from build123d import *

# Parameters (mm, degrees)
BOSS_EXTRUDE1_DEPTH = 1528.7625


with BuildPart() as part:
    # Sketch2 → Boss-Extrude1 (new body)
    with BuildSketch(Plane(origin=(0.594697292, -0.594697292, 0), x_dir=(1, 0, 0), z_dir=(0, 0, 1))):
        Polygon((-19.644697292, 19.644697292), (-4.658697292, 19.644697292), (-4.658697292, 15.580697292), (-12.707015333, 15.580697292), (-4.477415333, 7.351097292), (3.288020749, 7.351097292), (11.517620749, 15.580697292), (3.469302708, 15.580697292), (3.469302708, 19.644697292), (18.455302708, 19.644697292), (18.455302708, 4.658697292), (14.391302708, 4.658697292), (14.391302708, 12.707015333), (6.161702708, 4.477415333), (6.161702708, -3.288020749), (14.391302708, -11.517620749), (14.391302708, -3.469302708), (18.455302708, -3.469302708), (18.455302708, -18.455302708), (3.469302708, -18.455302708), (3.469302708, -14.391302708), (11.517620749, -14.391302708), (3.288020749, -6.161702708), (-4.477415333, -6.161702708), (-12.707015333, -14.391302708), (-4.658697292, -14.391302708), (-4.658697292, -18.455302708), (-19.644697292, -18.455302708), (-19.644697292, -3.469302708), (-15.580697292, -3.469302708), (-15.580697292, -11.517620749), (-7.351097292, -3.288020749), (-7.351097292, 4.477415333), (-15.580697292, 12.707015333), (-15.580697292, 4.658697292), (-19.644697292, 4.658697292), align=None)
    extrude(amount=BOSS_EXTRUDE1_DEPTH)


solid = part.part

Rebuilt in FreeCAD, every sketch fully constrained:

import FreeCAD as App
import Part
import Sketcher
Q = App.Units.Quantity

doc = App.newDocument("Part")
params = doc.addObject("Spreadsheet::Sheet", "Params")
for row, (alias, value) in enumerate([
    ("sketch1_width", "0.59 in"),
    ("sketch1_width2", "0.16 in"),
    ("pad1_length", "60.1875 in"),
], start=1):
    params.set(f"A{row}", alias)
    params.set(f"B{row}", "=" + value)
    params.setAlias(f"B{row}", alias)

body = doc.addObject("PartDesign::Body", "Body")

# Sketch on XY plane
sketch1 = body.newObject("Sketcher::SketchObject", "Sketch")
sketch1.AttachmentSupport = (doc.getObject("XY_Plane"), [""])
sketch1.MapMode = "FlatFace"
sketch1.addGeometry([
    Part.LineSegment(App.Vector(-4.1, 19.1, 0), App.Vector(-19.1, 19.1, 0)),  # 0
    Part.LineSegment(App.Vector(-19.1, 19.1, 0), App.Vector(-19.1, 4.1, 0)),  # 1
    Part.LineSegment(App.Vector(-19.1, 4.1, 0), App.Vector(-15, 4.1, 0)),  # 2
    Part.LineSegment(App.Vector(-15, 4.1, 0), App.Vector(-15, 12.1, 0)),  # 3
    Part.LineSegment(App.Vector(-15, 12.1, 0), App.Vector(-6.8, 3.9, 0)),  # 4
    Part.LineSegment(App.Vector(-6.8, 3.9, 0), App.Vector(-6.8, -3.9, 0)),  # 5
    Part.LineSegment(App.Vector(-6.8, -3.9, 0), App.Vector(-15, -12.1, 0)),  # 6
    Part.LineSegment(App.Vector(-15, -12.1, 0), App.Vector(-15, -4.1, 0)),  # 7
    Part.LineSegment(App.Vector(-15, -4.1, 0), App.Vector(-19.1, -4.1, 0)),  # 8
    Part.LineSegment(App.Vector(-19.1, -4.1, 0), App.Vector(-19.1, -19.1, 0)),  # 9
    Part.LineSegment(App.Vector(-19.1, -19.1, 0), App.Vector(-4.1, -19.1, 0)),  # 10
    Part.LineSegment(App.Vector(-4.1, -19.1, 0), App.Vector(-4.1, -15, 0)),  # 11
    Part.LineSegment(App.Vector(-4.1, -15, 0), App.Vector(-12.1, -15, 0)),  # 12
    Part.LineSegment(App.Vector(-12.1, -15, 0), App.Vector(-3.9, -6.8, 0)),  # 13
    Part.LineSegment(App.Vector(-3.9, -6.8, 0), App.Vector(3.9, -6.8, 0)),  # 14
    Part.LineSegment(App.Vector(3.9, -6.8, 0), App.Vector(12.1, -15, 0)),  # 15
    Part.LineSegment(App.Vector(12.1, -15, 0), App.Vector(4.1, -15, 0)),  # 16
    Part.LineSegment(App.Vector(4.1, -15, 0), App.Vector(4.1, -19.1, 0)),  # 17
    Part.LineSegment(App.Vector(4.1, -19.1, 0), App.Vector(19.1, -19.1, 0)),  # 18
    Part.LineSegment(App.Vector(19.1, -19.1, 0), App.Vector(19.1, -4.1, 0)),  # 19
    Part.LineSegment(App.Vector(19.1, -4.1, 0), App.Vector(15, -4.1, 0)),  # 20
    Part.LineSegment(App.Vector(15, -4.1, 0), App.Vector(15, -12.1, 0)),  # 21
    Part.LineSegment(App.Vector(15, -12.1, 0), App.Vector(6.8, -3.9, 0)),  # 22
    Part.LineSegment(App.Vector(6.8, -3.9, 0), App.Vector(6.8, 3.9, 0)),  # 23
    Part.LineSegment(App.Vector(6.8, 3.9, 0), App.Vector(15, 12.1, 0)),  # 24
    Part.LineSegment(App.Vector(15, 12.1, 0), App.Vector(15, 4.1, 0)),  # 25
    Part.LineSegment(App.Vector(15, 4.1, 0), App.Vector(19.1, 4.1, 0)),  # 26
    Part.LineSegment(App.Vector(19.1, 4.1, 0), App.Vector(19.1, 19.1, 0)),  # 27
    Part.LineSegment(App.Vector(19.1, 19.1, 0), App.Vector(4.1, 19.1, 0)),  # 28
    Part.LineSegment(App.Vector(4.1, 19.1, 0), App.Vector(4.1, 15, 0)),  # 29
    Part.LineSegment(App.Vector(4.1, 15, 0), App.Vector(12.1, 15, 0)),  # 30
    Part.LineSegment(App.Vector(12.1, 15, 0), App.Vector(3.9, 6.8, 0)),  # 31
    Part.LineSegment(App.Vector(3.9, 6.8, 0), App.Vector(-3.9, 6.8, 0)),  # 32
    Part.LineSegment(App.Vector(-3.9, 6.8, 0), App.Vector(-12.1, 15, 0)),  # 33
    Part.LineSegment(App.Vector(-12.1, 15, 0), App.Vector(-4.1, 15, 0)),  # 34
    Part.LineSegment(App.Vector(-4.1, 15, 0), App.Vector(-4.1, 19.1, 0)),  # 35
], False)
sketch1.addConstraint([
    Sketcher.Constraint("Coincident", 0, 2, 1, 1),
    Sketcher.Constraint("Coincident", 1, 2, 2, 1),
    Sketcher.Constraint("Coincident", 2, 2, 3, 1),
    Sketcher.Constraint("Coincident", 3, 2, 4, 1),
    Sketcher.Constraint("Coincident", 4, 2, 5, 1),
    Sketcher.Constraint("Coincident", 5, 2, 6, 1),
    Sketcher.Constraint("Coincident", 6, 2, 7, 1),
    Sketcher.Constraint("Coincident", 7, 2, 8, 1),
    Sketcher.Constraint("Coincident", 8, 2, 9, 1),
    Sketcher.Constraint("Coincident", 9, 2, 10, 1),
    Sketcher.Constraint("Coincident", 10, 2, 11, 1),
    Sketcher.Constraint("Coincident", 11, 2, 12, 1),
    Sketcher.Constraint("Coincident", 12, 2, 13, 1),
    Sketcher.Constraint("Coincident", 13, 2, 14, 1),
    Sketcher.Constraint("Coincident", 14, 2, 15, 1),
    Sketcher.Constraint("Coincident", 15, 2, 16, 1),
    Sketcher.Constraint("Coincident", 16, 2, 17, 1),
    Sketcher.Constraint("Coincident", 17, 2, 18, 1),
    Sketcher.Constraint("Coincident", 18, 2, 19, 1),
    Sketcher.Constraint("Coincident", 19, 2, 20, 1),
    Sketcher.Constraint("Coincident", 20, 2, 21, 1),
    Sketcher.Constraint("Coincident", 21, 2, 22, 1),
    Sketcher.Constraint("Coincident", 22, 2, 23, 1),
    Sketcher.Constraint("Coincident", 23, 2, 24, 1),
    Sketcher.Constraint("Coincident", 24, 2, 25, 1),
    Sketcher.Constraint("Coincident", 25, 2, 26, 1),
    Sketcher.Constraint("Coincident", 26, 2, 27, 1),
    Sketcher.Constraint("Coincident", 27, 2, 28, 1),
    Sketcher.Constraint("Coincident", 28, 2, 29, 1),
    Sketcher.Constraint("Coincident", 29, 2, 30, 1),
    Sketcher.Constraint("Coincident", 30, 2, 31, 1),
    Sketcher.Constraint("Coincident", 31, 2, 32, 1),
    Sketcher.Constraint("Coincident", 32, 2, 33, 1),
    Sketcher.Constraint("Coincident", 33, 2, 34, 1),
    Sketcher.Constraint("Coincident", 34, 2, 35, 1),
    Sketcher.Constraint("Coincident", 35, 2, 0, 1),
    Sketcher.Constraint("Horizontal", 0),
    Sketcher.Constraint("Vertical", 1),
    Sketcher.Constraint("Horizontal", 2),
    Sketcher.Constraint("Vertical", 3),
    Sketcher.Constraint("Vertical", 5),
    Sketcher.Constraint("Vertical", 7),
    Sketcher.Constraint("Horizontal", 8),
    Sketcher.Constraint("Vertical", 9),
    Sketcher.Constraint("Horizontal", 10),
    Sketcher.Constraint("Vertical", 11),
    Sketcher.Constraint("Horizontal", 12),
    Sketcher.Constraint("Horizontal", 14),
    Sketcher.Constraint("Horizontal", 16),
    Sketcher.Constraint("Vertical", 17),
    Sketcher.Constraint("Horizontal", 18),
    Sketcher.Constraint("Vertical", 19),
    Sketcher.Constraint("Horizontal", 20),
    Sketcher.Constraint("Vertical", 21),
    Sketcher.Constraint("Vertical", 23),
    Sketcher.Constraint("Vertical", 25),
    Sketcher.Constraint("Horizontal", 26),
    Sketcher.Constraint("Vertical", 27),
    Sketcher.Constraint("Horizontal", 28),
    Sketcher.Constraint("Vertical", 29),
    Sketcher.Constraint("Horizontal", 30),
    Sketcher.Constraint("Horizontal", 32),
    Sketcher.Constraint("Horizontal", 34),
    Sketcher.Constraint("Vertical", 35),
    Sketcher.Constraint("Symmetric", 0, 2, 18, 2, -1, 1),
    Sketcher.Constraint("Symmetric", 2, 2, 20, 2, -1, 1),
    Sketcher.Constraint("Symmetric", 4, 2, 22, 2, -1, 1),
    Sketcher.Constraint("Symmetric", 6, 2, 24, 2, -1, 1),
    Sketcher.Constraint("Symmetric", 8, 2, 26, 2, -1, 1),
    Sketcher.Constraint("Symmetric", 10, 2, 28, 2, -1, 1),
    Sketcher.Constraint("Symmetric", 12, 2, 30, 2, -1, 1),
    Sketcher.Constraint("Symmetric", 13, 2, 31, 2, -1, 1),
    Sketcher.Constraint("Symmetric", 15, 2, 33, 2, -1, 1),
    Sketcher.Constraint("Symmetric", 12, 2, 15, 2, -2),
    Sketcher.Constraint("Symmetric", 10, 2, 17, 2, -2),
    Sketcher.Constraint("Symmetric", 8, 2, 19, 2, -2),
    Sketcher.Constraint("Symmetric", 6, 2, 21, 2, -2),
    Sketcher.Constraint("Perpendicular", 4, 6),
    Sketcher.Constraint("Parallel", 6, 13),
    Sketcher.Constraint("Perpendicular", 13, 15),
    Sketcher.Constraint("Parallel", 15, 22),
    Sketcher.Constraint("Perpendicular", 22, 24),
    Sketcher.Constraint("Perpendicular", 31, 33),
    Sketcher.Constraint("Horizontal", 5, 2, 22, 2),
    Sketcher.Constraint("Vertical", 11, 2, 34, 2),
    Sketcher.Constraint("Equal", 28, 1),
    Sketcher.Constraint("Equal", 34, 3),
    Sketcher.Constraint("Equal", 32, 5),
    Sketcher.Constraint("Equal", 26, 11),
    Sketcher.Constraint("Equal", 6, 13),
    Sketcher.Constraint("DistanceX", 0, 2, 0, 1, Q("0.59 in")),
    Sketcher.Constraint("DistanceX", 2, 1, 2, 2, Q("0.16 in")),
    Sketcher.Constraint("DistanceX", 0, 2, -1, 1, Q("0.75 in")),
    Sketcher.Constraint("DistanceX", 4, 2, -1, 1, Q("0.266 in")),
    Sketcher.Constraint("DistanceX", 12, 2, 12, 1, 8.048318),
])
sketch1.setExpression("Constraints[90]", "Params.sketch1_width")
sketch1.setExpression("Constraints[91]", "Params.sketch1_width2")
pad1 = body.newObject("PartDesign::Pad", "Pad")
pad1.Profile = sketch1
pad1.setExpression("Length", "Params.pad1_length")

doc.recompute()
